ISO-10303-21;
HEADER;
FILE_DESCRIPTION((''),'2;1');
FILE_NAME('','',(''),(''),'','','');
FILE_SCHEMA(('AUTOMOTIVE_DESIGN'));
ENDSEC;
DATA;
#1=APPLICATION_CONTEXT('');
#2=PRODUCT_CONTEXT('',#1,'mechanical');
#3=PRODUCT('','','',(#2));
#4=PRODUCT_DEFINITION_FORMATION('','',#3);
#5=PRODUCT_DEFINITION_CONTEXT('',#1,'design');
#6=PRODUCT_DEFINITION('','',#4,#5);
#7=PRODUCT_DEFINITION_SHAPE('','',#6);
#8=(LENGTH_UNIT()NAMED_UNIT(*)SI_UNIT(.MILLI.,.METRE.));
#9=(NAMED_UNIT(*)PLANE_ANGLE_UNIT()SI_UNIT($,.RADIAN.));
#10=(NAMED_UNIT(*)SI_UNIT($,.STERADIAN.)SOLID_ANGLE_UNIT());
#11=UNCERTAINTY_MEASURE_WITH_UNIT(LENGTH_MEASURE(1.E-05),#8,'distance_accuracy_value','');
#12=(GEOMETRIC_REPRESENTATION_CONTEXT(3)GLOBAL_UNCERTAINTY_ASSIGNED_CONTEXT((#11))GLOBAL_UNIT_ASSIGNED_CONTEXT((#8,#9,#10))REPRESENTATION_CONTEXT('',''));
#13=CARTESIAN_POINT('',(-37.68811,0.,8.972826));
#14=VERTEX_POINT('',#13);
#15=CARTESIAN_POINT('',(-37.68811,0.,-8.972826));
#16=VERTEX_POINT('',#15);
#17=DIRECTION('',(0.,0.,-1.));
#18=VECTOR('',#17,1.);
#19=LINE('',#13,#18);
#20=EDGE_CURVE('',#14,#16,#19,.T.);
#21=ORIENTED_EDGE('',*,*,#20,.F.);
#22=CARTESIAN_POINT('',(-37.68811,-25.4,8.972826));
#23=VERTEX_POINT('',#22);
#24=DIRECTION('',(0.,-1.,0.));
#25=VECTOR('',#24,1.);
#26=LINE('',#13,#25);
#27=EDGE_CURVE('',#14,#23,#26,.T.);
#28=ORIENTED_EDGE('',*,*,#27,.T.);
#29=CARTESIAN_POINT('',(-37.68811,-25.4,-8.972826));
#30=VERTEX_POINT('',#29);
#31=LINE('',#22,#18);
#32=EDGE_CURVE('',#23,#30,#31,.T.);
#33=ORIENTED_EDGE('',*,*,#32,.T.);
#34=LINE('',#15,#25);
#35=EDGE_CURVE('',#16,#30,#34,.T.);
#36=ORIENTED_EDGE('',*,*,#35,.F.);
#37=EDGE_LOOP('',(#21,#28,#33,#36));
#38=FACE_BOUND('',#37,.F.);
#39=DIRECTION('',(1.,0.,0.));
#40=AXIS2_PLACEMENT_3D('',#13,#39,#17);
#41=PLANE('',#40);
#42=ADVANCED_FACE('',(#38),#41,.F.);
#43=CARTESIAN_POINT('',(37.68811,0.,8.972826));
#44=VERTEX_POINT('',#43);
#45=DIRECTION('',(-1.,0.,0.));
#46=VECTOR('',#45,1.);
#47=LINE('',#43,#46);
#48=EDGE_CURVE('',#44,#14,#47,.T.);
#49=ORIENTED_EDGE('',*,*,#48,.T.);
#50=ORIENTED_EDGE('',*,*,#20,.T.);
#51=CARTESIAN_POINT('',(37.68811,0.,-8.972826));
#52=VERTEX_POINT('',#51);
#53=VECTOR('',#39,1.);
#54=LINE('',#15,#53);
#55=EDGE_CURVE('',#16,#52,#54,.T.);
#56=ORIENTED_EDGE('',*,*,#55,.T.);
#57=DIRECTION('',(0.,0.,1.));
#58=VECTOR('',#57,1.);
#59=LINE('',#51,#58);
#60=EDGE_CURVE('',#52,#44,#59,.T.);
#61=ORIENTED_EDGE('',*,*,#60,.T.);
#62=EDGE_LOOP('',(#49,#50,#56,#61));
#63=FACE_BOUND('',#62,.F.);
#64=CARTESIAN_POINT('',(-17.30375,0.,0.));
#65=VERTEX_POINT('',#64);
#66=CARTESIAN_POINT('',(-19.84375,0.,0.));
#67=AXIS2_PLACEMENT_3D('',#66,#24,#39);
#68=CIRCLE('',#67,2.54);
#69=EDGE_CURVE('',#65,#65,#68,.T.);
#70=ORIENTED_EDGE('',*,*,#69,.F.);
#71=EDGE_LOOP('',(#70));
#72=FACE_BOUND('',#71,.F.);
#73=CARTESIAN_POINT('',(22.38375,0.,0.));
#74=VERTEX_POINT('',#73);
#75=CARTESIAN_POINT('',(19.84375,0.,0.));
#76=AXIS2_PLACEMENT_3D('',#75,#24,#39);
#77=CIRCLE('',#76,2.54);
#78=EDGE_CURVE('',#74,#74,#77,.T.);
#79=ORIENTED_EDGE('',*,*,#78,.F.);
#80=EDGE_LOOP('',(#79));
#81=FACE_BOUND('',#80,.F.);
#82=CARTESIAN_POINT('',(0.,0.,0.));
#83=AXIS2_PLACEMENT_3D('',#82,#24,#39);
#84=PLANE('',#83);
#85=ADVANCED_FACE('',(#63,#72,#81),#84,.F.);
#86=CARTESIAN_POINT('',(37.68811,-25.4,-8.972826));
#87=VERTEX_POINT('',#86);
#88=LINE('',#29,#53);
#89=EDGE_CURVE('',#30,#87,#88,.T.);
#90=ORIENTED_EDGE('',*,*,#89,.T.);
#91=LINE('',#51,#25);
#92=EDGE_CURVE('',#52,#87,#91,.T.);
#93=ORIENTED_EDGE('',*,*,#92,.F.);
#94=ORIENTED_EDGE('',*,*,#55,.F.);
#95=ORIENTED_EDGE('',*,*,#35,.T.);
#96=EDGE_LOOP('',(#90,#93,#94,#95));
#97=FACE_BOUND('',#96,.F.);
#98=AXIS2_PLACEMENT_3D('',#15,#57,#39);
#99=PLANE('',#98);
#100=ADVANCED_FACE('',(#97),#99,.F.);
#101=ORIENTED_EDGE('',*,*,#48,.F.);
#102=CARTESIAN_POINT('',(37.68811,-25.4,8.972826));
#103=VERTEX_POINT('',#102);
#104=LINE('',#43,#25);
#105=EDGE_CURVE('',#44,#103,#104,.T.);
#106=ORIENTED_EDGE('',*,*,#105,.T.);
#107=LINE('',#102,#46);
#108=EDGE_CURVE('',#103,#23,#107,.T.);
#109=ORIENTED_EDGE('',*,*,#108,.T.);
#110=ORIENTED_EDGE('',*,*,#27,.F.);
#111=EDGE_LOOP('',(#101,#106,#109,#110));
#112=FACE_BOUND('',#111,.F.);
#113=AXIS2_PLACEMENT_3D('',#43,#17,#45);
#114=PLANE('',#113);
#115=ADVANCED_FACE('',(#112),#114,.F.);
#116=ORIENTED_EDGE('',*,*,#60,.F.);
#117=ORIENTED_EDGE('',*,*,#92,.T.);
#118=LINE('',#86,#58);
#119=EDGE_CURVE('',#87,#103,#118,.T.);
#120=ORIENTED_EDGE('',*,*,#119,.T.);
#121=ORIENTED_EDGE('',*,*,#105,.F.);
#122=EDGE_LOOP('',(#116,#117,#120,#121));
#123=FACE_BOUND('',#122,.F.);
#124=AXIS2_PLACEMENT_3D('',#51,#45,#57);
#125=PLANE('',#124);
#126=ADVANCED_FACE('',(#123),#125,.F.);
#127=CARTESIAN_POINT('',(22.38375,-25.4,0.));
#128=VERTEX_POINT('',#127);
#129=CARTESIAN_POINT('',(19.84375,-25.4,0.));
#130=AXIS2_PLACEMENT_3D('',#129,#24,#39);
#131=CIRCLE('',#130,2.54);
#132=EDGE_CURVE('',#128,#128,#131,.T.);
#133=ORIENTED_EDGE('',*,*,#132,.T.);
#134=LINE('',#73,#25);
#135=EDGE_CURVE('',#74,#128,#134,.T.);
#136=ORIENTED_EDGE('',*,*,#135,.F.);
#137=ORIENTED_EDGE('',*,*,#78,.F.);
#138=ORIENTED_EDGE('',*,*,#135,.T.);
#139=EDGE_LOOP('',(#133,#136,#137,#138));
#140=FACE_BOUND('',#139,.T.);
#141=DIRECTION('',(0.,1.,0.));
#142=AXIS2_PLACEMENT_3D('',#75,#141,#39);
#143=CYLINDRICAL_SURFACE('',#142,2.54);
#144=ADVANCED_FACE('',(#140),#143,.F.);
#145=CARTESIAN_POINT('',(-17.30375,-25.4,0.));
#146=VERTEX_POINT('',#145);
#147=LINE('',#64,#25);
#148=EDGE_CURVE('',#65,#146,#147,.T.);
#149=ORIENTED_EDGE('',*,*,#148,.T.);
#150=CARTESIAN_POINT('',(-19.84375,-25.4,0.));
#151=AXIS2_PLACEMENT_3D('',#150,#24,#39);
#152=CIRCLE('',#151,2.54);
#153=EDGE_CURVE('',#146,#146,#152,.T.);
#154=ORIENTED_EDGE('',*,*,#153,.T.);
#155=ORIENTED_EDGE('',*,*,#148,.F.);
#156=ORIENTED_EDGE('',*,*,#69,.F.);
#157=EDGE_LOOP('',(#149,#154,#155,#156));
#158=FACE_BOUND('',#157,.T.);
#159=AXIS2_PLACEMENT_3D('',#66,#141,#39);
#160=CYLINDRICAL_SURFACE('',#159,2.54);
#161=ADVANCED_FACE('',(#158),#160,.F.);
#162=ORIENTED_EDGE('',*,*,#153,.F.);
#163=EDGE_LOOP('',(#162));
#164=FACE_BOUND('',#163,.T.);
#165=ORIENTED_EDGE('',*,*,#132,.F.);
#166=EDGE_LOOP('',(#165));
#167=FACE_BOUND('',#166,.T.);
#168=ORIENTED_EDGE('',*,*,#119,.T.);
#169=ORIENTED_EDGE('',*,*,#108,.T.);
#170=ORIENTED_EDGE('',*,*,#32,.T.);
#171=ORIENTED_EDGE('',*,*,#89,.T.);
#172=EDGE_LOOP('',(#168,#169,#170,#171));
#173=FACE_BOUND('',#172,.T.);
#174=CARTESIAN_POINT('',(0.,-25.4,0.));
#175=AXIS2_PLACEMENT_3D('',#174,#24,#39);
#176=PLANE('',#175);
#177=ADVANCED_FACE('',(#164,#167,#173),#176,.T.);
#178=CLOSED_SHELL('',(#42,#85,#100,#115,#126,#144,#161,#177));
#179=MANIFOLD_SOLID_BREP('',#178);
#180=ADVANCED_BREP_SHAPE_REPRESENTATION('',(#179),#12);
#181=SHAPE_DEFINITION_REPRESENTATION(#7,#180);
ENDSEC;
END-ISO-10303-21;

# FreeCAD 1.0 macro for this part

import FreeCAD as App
import Part
import Sketcher
Q = App.Units.Quantity


def add_polygon(sketch, points):
    """Adds a closed chain of lines whose ends are joined by coincident constraints."""
    first, n = sketch.GeometryCount, len(points)
    for a, b in zip(points, points[1:] + points[:1]):
        sketch.addGeometry(Part.LineSegment(App.Vector(*a, 0), App.Vector(*b, 0)), False)
    for i in range(n):
        sketch.addConstraint(Sketcher.Constraint("Coincident", first + i, 2, first + (i + 1) % n, 1))

doc = App.newDocument("Part")
body = doc.addObject("PartDesign::Body", "Body")

# Sketch on XZ plane
sketch1 = body.newObject("Sketcher::SketchObject", "Sketch")
sketch1.AttachmentSupport = (doc.getObject("XZ_Plane"), [""])
sketch1.MapMode = "FlatFace"
add_polygon(sketch1, [(-37.68811, 8.972826), (-37.68811, -8.972826), (37.68811, -8.972826), (37.68811, 8.972826)])  # lines 0-3
sketch1.addGeometry(Part.Circle(App.Vector(-19.84375, 0, 0), App.Vector(0, 0, 1), 2.54), False)  # 4
sketch1.addGeometry(Part.Circle(App.Vector(19.84375, 0, 0), App.Vector(0, 0, 1), 2.54), False)  # 5
sketch1.addConstraint([
    Sketcher.Constraint("Vertical", 0),
    Sketcher.Constraint("Horizontal", 1),
    Sketcher.Constraint("Vertical", 2),
    Sketcher.Constraint("Horizontal", 3),
    Sketcher.Constraint("Equal", 4, 5),
    Sketcher.Constraint("Symmetric", 4, 3, 5, 3, -1, 1),
    Sketcher.Constraint("Symmetric", 0, 2, 2, 2, -1, 1),
    Sketcher.Constraint("PointOnObject", 4, 3, -1),
    Sketcher.Constraint("Diameter", 4, Q("0.2 in")),
    Sketcher.Constraint("DistanceX", 4, 3, -1, 1, Q("0.78125 in")),
    Sketcher.Constraint("DistanceX", 1, 1, 1, 2, Q("75.37622 mm")),
    Sketcher.Constraint("DistanceY", 0, 2, 0, 1, Q("17.945652 mm")),
])
pad1 = body.newObject("PartDesign::Pad", "Pad")
pad1.Profile = sketch1
pad1.Length = Q("1 in")

doc.recompute()
